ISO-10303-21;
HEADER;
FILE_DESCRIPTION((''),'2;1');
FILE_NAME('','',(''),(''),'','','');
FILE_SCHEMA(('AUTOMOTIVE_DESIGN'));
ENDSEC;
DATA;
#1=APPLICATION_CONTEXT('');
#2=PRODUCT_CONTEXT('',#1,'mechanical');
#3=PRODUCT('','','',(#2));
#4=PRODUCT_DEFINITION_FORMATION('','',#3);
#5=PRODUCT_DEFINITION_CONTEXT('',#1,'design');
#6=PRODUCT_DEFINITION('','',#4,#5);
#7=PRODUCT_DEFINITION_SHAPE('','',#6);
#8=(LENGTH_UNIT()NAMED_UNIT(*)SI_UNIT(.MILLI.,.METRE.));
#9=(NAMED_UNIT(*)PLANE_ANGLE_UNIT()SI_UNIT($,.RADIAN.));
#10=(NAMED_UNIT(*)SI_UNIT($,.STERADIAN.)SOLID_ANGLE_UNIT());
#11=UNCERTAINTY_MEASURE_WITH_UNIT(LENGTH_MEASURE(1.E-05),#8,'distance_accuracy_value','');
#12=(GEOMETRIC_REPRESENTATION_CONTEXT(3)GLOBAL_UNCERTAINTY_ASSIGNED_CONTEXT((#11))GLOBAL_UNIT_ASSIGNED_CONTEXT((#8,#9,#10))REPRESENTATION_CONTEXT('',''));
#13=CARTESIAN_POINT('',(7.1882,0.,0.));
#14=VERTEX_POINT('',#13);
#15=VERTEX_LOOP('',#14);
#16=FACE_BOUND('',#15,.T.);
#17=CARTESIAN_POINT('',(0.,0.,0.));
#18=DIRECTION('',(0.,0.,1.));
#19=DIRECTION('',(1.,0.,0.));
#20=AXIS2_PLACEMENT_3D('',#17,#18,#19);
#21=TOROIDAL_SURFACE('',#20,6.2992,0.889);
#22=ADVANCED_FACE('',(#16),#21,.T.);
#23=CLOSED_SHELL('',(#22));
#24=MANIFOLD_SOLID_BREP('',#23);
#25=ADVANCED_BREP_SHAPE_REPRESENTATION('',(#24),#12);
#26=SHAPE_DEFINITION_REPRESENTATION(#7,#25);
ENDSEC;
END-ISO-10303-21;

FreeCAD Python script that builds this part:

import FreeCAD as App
import Part
import Sketcher
from FreeCAD import Vector
Q = App.Units.Quantity

doc = App.newDocument("Part")
params = doc.addObject("Spreadsheet::Sheet", "Params")
for row, (alias, value) in enumerate([
    ("sketch1_diameter", "0.07 in"),
    ("revolution_angle", "360 deg"),
], start=1):
    params.set(f"A{row}", alias)
    params.set(f"B{row}", "=" + value)
    params.setAlias(f"B{row}", alias)

body = doc.addObject("PartDesign::Body", "Body")

# Sketch on YZ plane
sketch1 = body.newObject("Sketcher::SketchObject", "Sketch")
sketch1.AttachmentSupport = (doc.getObject("YZ_Plane"), [""])
sketch1.MapMode = "FlatFace"
sketch1.addGeometry(Part.Circle(Vector(-6.3, 0, 0), Vector(0, 0, 1), 0.9), False)
sketch1.addConstraint(Sketcher.Constraint("PointOnObject", 0, 3, -1))
sketch1.addConstraint(Sketcher.Constraint("Diameter", 0, Q("0.07 in")))
sketch1.addConstraint(Sketcher.Constraint("DistanceX", 0, 3, -1, 1, Q("0.248 in")))
sketch1.setExpression("Constraints[1]", "Params.sketch1_diameter")
revolution = body.newObject("PartDesign::Revolution", "Revolution")
revolution.Profile = sketch1
revolution.ReferenceAxis = (sketch1, ["V_Axis"])
revolution.setExpression("Angle", "Params.revolution_angle")

doc.recompute()
